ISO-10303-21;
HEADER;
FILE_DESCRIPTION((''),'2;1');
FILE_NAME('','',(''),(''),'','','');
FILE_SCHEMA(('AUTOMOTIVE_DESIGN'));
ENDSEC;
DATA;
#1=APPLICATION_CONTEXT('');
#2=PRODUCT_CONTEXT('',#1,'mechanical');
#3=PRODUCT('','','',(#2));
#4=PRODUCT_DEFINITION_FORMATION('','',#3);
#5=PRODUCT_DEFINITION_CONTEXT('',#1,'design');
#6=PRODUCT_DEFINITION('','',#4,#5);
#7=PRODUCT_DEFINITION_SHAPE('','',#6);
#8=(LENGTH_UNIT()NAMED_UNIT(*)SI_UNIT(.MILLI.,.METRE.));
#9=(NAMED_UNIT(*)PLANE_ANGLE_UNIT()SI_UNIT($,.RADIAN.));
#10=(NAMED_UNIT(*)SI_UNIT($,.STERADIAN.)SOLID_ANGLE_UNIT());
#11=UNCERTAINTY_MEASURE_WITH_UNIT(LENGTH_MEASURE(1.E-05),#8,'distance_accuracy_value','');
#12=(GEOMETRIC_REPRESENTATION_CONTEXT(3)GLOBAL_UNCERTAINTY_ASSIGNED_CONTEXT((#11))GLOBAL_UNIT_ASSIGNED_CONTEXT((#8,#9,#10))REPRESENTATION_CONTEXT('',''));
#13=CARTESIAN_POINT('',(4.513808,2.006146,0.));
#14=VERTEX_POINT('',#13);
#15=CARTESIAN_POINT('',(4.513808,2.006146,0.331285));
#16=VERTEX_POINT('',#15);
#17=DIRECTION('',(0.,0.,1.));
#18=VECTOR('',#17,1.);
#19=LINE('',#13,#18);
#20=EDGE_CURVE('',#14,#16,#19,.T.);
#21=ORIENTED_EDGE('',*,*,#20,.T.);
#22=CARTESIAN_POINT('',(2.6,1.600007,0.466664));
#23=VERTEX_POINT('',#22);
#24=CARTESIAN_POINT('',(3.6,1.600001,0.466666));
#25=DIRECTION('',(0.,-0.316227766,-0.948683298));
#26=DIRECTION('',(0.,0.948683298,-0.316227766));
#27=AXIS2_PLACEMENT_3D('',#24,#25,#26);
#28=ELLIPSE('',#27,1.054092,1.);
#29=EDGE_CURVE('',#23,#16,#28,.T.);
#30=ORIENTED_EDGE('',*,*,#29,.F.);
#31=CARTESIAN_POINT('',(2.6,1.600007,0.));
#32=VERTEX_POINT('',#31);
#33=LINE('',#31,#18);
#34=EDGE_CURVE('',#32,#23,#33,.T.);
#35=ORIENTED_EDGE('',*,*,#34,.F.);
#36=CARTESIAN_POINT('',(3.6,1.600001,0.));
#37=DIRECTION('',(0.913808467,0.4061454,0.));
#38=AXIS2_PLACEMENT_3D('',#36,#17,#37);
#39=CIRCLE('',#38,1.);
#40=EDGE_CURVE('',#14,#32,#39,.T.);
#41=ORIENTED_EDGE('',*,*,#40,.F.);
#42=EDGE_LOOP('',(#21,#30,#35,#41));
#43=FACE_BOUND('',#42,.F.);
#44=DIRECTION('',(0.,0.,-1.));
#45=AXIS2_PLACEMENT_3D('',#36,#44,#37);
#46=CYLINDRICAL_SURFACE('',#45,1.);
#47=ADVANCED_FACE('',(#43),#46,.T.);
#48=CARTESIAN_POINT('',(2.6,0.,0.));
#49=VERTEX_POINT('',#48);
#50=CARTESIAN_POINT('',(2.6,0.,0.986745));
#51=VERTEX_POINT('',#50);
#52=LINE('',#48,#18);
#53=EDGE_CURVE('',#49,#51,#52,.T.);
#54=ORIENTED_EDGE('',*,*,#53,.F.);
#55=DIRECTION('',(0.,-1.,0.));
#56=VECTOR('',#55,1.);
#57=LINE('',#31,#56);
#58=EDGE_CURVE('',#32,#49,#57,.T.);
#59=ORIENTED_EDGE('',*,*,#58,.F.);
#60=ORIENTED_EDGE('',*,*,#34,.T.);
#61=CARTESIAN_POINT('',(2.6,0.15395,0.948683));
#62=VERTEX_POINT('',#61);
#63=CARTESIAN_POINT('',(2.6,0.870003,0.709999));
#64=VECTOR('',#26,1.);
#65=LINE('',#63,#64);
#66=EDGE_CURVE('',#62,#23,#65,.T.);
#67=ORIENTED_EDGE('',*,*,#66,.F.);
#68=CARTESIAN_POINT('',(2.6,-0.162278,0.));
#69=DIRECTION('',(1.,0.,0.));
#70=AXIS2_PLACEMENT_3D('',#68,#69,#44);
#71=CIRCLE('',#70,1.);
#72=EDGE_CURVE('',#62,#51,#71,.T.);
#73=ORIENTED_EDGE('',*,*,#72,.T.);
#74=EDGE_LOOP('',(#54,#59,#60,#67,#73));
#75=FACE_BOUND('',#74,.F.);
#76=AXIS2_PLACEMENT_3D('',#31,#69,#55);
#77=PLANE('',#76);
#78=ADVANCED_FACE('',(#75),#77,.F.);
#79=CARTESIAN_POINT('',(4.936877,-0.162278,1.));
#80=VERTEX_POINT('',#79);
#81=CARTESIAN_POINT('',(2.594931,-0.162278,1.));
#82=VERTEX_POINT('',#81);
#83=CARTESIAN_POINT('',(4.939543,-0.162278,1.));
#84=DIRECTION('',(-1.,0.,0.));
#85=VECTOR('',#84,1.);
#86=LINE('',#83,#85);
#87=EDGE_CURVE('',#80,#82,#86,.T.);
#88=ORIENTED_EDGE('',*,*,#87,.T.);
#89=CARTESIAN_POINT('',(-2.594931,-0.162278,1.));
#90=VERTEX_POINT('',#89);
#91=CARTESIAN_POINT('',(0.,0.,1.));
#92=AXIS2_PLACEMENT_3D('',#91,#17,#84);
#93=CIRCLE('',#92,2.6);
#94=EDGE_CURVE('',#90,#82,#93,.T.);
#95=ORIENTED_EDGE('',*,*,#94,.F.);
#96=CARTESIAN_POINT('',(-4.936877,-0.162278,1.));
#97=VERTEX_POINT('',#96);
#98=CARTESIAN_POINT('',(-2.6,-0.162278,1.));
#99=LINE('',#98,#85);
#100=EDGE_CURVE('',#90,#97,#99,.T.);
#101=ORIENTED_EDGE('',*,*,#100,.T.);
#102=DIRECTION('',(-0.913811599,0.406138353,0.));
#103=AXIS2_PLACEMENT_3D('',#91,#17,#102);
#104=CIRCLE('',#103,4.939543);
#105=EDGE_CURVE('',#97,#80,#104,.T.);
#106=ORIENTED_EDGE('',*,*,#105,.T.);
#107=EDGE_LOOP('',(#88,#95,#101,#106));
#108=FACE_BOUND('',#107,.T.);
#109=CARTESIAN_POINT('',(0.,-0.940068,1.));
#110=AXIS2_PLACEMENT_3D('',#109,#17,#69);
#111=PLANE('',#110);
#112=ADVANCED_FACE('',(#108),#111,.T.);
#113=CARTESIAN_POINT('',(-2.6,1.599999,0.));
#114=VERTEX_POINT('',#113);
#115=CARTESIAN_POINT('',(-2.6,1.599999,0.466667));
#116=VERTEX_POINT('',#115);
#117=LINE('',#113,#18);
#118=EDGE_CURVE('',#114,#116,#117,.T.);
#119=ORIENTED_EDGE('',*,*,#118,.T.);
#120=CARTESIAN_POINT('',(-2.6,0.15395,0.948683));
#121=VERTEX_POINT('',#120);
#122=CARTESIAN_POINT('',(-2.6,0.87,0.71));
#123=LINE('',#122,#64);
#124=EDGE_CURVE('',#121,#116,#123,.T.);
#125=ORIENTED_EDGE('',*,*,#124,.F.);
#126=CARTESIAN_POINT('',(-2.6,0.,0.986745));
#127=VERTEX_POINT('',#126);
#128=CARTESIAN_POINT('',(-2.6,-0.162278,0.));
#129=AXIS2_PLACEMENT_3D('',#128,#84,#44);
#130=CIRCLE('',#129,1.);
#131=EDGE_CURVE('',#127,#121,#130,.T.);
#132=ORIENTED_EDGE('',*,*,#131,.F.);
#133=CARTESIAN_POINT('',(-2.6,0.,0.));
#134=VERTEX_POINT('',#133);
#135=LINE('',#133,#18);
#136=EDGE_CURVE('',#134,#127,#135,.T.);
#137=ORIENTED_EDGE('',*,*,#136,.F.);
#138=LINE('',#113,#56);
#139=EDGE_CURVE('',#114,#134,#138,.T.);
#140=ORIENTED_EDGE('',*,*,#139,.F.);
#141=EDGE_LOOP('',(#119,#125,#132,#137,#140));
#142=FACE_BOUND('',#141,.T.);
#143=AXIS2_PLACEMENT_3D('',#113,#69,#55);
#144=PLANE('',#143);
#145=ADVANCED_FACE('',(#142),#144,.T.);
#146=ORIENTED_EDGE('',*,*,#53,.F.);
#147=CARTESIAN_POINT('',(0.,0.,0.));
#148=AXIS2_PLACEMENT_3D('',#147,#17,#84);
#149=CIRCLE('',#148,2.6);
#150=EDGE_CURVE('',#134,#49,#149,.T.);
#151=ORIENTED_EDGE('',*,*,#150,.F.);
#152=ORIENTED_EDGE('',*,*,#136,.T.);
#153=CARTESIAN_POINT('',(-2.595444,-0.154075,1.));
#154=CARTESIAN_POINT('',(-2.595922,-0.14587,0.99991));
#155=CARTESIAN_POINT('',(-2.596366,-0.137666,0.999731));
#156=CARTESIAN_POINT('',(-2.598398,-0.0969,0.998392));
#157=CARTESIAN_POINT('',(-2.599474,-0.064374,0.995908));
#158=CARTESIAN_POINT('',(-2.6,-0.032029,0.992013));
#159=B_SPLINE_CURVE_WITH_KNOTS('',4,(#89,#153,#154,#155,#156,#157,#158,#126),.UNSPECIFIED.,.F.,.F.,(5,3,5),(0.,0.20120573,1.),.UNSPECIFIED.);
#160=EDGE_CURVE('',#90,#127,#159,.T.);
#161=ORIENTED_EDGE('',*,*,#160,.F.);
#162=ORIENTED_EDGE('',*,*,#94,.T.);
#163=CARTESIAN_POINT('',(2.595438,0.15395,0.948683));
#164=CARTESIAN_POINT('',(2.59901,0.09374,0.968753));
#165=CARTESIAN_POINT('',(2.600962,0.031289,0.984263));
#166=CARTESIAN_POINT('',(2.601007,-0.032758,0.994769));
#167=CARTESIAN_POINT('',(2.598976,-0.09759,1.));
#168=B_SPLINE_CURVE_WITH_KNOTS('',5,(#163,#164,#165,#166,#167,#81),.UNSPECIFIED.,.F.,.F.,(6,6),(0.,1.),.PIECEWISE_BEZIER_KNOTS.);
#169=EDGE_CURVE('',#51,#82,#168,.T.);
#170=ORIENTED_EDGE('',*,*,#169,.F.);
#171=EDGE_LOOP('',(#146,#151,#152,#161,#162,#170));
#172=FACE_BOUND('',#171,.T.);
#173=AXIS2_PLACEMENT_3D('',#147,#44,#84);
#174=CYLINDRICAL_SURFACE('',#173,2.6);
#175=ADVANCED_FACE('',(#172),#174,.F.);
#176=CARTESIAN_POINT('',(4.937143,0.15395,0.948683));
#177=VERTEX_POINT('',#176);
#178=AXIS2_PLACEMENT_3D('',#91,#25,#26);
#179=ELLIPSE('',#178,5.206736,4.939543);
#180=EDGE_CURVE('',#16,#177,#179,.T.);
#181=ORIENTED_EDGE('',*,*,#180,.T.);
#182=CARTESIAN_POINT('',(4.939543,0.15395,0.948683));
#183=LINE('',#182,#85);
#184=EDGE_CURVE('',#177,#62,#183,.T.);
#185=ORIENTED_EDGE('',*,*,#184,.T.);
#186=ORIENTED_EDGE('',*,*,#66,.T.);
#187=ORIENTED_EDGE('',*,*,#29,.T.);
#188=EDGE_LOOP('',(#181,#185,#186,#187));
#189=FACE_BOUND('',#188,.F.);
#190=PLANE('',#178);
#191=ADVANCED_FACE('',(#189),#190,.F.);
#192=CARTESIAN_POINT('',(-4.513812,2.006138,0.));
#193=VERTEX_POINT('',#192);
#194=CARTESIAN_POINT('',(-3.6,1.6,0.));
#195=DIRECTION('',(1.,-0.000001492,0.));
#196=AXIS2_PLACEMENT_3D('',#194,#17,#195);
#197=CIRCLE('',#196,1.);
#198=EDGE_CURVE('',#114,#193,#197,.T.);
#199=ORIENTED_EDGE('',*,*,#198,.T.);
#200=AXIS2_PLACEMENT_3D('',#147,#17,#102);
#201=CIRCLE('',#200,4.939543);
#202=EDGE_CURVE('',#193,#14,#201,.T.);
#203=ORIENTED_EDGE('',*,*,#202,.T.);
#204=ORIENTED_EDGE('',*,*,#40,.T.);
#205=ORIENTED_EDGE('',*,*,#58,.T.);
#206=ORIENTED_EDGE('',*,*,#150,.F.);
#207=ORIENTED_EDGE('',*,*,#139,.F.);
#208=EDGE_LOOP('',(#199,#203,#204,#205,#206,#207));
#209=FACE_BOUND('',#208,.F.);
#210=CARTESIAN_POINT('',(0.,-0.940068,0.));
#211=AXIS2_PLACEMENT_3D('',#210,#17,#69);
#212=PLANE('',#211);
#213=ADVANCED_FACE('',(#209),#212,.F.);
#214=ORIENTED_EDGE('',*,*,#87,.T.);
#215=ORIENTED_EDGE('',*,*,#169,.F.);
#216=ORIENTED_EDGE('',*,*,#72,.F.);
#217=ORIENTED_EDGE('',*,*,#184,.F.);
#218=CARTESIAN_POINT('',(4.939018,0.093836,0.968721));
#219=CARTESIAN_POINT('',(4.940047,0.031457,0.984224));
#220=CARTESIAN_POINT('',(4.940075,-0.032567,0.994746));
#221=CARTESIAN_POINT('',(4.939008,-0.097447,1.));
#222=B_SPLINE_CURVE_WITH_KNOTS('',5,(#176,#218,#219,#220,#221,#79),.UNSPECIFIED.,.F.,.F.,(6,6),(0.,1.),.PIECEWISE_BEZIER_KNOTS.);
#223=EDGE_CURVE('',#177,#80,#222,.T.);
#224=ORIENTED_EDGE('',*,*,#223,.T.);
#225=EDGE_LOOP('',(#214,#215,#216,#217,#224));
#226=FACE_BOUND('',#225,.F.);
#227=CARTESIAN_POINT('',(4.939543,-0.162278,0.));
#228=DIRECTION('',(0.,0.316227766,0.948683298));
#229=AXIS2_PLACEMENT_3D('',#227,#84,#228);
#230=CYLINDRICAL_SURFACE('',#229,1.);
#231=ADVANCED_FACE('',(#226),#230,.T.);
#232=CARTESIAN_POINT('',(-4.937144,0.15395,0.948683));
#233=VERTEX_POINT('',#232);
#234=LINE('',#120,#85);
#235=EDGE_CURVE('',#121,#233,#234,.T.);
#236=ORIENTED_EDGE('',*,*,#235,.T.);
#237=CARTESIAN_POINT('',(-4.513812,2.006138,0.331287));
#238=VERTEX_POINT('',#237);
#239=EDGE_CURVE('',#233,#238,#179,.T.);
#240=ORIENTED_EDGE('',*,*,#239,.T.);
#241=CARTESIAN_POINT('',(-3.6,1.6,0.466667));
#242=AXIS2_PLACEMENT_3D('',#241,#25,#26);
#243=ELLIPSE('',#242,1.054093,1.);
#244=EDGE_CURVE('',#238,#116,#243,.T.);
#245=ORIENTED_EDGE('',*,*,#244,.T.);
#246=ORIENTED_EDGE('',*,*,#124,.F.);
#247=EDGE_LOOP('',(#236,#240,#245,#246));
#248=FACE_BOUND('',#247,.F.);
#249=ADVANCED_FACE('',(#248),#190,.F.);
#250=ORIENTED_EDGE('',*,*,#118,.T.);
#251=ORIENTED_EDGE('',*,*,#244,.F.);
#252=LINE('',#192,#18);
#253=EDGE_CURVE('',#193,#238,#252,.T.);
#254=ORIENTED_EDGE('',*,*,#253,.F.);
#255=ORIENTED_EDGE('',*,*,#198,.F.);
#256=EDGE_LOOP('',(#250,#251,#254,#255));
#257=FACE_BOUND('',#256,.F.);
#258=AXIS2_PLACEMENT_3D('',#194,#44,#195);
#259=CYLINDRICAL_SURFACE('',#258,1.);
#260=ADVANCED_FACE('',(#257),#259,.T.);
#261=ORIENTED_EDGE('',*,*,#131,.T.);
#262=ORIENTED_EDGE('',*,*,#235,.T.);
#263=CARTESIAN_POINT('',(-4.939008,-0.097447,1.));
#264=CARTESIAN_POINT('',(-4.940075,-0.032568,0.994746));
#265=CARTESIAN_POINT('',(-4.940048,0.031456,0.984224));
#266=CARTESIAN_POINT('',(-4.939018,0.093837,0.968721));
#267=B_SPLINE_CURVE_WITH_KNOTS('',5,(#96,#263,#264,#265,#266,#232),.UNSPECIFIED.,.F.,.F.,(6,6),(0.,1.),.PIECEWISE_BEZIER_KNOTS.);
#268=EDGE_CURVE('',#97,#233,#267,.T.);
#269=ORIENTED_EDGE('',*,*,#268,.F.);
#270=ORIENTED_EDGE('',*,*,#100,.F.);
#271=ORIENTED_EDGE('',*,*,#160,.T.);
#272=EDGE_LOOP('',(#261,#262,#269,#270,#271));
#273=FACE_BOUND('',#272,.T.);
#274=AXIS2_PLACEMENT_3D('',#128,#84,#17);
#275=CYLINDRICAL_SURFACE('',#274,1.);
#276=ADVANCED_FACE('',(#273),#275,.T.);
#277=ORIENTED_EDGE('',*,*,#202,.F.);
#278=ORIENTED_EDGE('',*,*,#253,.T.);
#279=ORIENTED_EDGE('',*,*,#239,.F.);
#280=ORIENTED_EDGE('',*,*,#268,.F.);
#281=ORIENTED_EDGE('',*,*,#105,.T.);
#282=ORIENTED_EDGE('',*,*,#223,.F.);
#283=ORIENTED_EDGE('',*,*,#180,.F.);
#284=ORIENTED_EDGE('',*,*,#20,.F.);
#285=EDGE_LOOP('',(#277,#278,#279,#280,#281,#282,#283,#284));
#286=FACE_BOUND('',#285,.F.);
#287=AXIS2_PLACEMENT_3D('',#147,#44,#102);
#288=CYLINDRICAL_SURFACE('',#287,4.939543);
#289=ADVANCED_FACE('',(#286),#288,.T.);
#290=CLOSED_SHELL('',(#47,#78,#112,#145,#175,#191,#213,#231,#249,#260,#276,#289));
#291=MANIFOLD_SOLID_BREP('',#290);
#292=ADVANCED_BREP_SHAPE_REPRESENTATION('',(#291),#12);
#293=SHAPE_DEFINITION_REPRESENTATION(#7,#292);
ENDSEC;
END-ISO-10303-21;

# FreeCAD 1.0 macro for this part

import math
import FreeCAD as App
import Part
import Sketcher
Q = App.Units.Quantity


def edges_at(feature, points):
    """Names of the edges that pass closest to the given points."""
    edges = feature.Shape.Edges
    near = lambda p: min(range(len(edges)), key=lambda i: edges[i].distToShape(Part.Vertex(*p))[0])
    return sorted({f"Edge{near(p) + 1}" for p in points})


def add_polygon(sketch, points):
    """Adds a closed chain of lines whose ends are joined by coincident constraints."""
    first, n = sketch.GeometryCount, len(points)
    for a, b in zip(points, points[1:] + points[:1]):
        sketch.addGeometry(Part.LineSegment(App.Vector(*a, 0), App.Vector(*b, 0)), False)
    for i in range(n):
        sketch.addConstraint(Sketcher.Constraint("Coincident", first + i, 2, first + (i + 1) % n, 1))

doc = App.newDocument("Part")
body = doc.addObject("PartDesign::Body", "Body")

# Sketch on YZ plane
sketch1 = body.newObject("Sketcher::SketchObject", "Sketch")
sketch1.AttachmentSupport = (doc.getObject("YZ_Plane"), [""])
sketch1.MapMode = "FlatFace"
add_polygon(sketch1, [(0, 1), (3, 0), (3, 1)])  # lines 0-2
sketch1.addConstraint(Sketcher.Constraint("Vertical", 1))
sketch1.addConstraint(Sketcher.Constraint("Horizontal", 2))
sketch1.addConstraint(Sketcher.Constraint("PointOnObject", 0, 2, -1))
sketch1.addConstraint(Sketcher.Constraint("PointOnObject", 2, 2, -2))
sketch1.addConstraint(Sketcher.Constraint("DistanceX", 2, 2, 2, 1, Q("3 mm")))
sketch1.addConstraint(Sketcher.Constraint("DistanceY", 1, 1, 1, 2, Q("1 mm")))
pad1 = body.newObject("PartDesign::Pad", "Pad")
pad1.Profile = sketch1
pad1.Length = 10
pad1.Midplane = True
body2 = doc.addObject("PartDesign::Body", "Body001")

# Sketch on XY plane
sketch2 = body2.newObject("Sketcher::SketchObject", "Sketch001")
sketch2.AttachmentSupport = (doc.getObject("XY_Plane001"), [""])
sketch2.MapMode = "FlatFace"
sketch2.addGeometry(Part.ArcOfCircle(Part.Circle(App.Vector(0, 0, 0), App.Vector(0, 0, 1), 4.9), math.radians(156), math.radians(384)), False)
sketch2.addGeometry(Part.ArcOfCircle(Part.Circle(App.Vector(3.6, 1.6, 0), App.Vector(0, 0, 1), 1), math.radians(24), math.radians(180)), False)
sketch2.addGeometry(Part.LineSegment(App.Vector(2.6, 1.6, 0), App.Vector(2.6, 0, 0)), False)
sketch2.addGeometry(Part.ArcOfCircle(Part.Circle(App.Vector(0, 0, 0), App.Vector(0, 0, 1), 2.6), math.radians(180), math.radians(360)), False)
sketch2.addGeometry(Part.LineSegment(App.Vector(-2.6, 0, 0), App.Vector(-2.6, 1.6, 0)), False)
sketch2.addGeometry(Part.ArcOfCircle(Part.Circle(App.Vector(-3.6, 1.6, 0), App.Vector(0, 0, 1), 1), math.radians(0), math.radians(156)), False)
sketch2.addConstraint(Sketcher.Constraint("Coincident", 0, 2, 1, 1))
sketch2.addConstraint(Sketcher.Constraint("Coincident", 1, 2, 2, 1))
sketch2.addConstraint(Sketcher.Constraint("Tangent", 2, 2, 3, 2))
sketch2.addConstraint(Sketcher.Constraint("Tangent", 3, 1, 4, 1))
sketch2.addConstraint(Sketcher.Constraint("Tangent", 4, 2, 5, 1))
sketch2.addConstraint(Sketcher.Constraint("Tangent", 5, 2, 0, 1))
sketch2.addConstraint(Sketcher.Constraint("Vertical", 2))
sketch2.addConstraint(Sketcher.Constraint("Vertical", 4))
sketch2.addConstraint(Sketcher.Constraint("Coincident", 0, 3, -1, 1))
sketch2.addConstraint(Sketcher.Constraint("Coincident", 3, 3, -1, 1))
sketch2.addConstraint(Sketcher.Constraint("Equal", 1, 5))
sketch2.addConstraint(Sketcher.Constraint("Radius", 1, Q("1 mm")))
sketch2.addConstraint(Sketcher.Constraint("Radius", 3, Q("2.6 mm")))
sketch2.addConstraint(Sketcher.Constraint("DistanceY", 4, 1, 4, 2, Q("1.599999 mm")))
sketch2.addConstraint(Sketcher.Constraint("DistanceY", 2, 2, 2, 1, Q("1.600007 mm")))
sketch2.addConstraint(Sketcher.Constraint("DistanceX", 1, 3, 0, 2, Q("0.913808 mm")))
pad2 = body2.newObject("PartDesign::Pad", "Pad001")
pad2.Profile = sketch2
pad2.Length = 1
doc.recompute()

boolean = body2.newObject("PartDesign::Boolean", "Boolean")
boolean.Type = "Cut"
boolean.addObjects([body])
doc.recompute()

fillet = body2.newObject("PartDesign::Fillet", "Fillet")
fillet.Base = (boolean, edges_at(boolean, [(3.77, 0, 1), (-3.77, 0, 1)]))
fillet.Radius = 1

doc.recompute()
